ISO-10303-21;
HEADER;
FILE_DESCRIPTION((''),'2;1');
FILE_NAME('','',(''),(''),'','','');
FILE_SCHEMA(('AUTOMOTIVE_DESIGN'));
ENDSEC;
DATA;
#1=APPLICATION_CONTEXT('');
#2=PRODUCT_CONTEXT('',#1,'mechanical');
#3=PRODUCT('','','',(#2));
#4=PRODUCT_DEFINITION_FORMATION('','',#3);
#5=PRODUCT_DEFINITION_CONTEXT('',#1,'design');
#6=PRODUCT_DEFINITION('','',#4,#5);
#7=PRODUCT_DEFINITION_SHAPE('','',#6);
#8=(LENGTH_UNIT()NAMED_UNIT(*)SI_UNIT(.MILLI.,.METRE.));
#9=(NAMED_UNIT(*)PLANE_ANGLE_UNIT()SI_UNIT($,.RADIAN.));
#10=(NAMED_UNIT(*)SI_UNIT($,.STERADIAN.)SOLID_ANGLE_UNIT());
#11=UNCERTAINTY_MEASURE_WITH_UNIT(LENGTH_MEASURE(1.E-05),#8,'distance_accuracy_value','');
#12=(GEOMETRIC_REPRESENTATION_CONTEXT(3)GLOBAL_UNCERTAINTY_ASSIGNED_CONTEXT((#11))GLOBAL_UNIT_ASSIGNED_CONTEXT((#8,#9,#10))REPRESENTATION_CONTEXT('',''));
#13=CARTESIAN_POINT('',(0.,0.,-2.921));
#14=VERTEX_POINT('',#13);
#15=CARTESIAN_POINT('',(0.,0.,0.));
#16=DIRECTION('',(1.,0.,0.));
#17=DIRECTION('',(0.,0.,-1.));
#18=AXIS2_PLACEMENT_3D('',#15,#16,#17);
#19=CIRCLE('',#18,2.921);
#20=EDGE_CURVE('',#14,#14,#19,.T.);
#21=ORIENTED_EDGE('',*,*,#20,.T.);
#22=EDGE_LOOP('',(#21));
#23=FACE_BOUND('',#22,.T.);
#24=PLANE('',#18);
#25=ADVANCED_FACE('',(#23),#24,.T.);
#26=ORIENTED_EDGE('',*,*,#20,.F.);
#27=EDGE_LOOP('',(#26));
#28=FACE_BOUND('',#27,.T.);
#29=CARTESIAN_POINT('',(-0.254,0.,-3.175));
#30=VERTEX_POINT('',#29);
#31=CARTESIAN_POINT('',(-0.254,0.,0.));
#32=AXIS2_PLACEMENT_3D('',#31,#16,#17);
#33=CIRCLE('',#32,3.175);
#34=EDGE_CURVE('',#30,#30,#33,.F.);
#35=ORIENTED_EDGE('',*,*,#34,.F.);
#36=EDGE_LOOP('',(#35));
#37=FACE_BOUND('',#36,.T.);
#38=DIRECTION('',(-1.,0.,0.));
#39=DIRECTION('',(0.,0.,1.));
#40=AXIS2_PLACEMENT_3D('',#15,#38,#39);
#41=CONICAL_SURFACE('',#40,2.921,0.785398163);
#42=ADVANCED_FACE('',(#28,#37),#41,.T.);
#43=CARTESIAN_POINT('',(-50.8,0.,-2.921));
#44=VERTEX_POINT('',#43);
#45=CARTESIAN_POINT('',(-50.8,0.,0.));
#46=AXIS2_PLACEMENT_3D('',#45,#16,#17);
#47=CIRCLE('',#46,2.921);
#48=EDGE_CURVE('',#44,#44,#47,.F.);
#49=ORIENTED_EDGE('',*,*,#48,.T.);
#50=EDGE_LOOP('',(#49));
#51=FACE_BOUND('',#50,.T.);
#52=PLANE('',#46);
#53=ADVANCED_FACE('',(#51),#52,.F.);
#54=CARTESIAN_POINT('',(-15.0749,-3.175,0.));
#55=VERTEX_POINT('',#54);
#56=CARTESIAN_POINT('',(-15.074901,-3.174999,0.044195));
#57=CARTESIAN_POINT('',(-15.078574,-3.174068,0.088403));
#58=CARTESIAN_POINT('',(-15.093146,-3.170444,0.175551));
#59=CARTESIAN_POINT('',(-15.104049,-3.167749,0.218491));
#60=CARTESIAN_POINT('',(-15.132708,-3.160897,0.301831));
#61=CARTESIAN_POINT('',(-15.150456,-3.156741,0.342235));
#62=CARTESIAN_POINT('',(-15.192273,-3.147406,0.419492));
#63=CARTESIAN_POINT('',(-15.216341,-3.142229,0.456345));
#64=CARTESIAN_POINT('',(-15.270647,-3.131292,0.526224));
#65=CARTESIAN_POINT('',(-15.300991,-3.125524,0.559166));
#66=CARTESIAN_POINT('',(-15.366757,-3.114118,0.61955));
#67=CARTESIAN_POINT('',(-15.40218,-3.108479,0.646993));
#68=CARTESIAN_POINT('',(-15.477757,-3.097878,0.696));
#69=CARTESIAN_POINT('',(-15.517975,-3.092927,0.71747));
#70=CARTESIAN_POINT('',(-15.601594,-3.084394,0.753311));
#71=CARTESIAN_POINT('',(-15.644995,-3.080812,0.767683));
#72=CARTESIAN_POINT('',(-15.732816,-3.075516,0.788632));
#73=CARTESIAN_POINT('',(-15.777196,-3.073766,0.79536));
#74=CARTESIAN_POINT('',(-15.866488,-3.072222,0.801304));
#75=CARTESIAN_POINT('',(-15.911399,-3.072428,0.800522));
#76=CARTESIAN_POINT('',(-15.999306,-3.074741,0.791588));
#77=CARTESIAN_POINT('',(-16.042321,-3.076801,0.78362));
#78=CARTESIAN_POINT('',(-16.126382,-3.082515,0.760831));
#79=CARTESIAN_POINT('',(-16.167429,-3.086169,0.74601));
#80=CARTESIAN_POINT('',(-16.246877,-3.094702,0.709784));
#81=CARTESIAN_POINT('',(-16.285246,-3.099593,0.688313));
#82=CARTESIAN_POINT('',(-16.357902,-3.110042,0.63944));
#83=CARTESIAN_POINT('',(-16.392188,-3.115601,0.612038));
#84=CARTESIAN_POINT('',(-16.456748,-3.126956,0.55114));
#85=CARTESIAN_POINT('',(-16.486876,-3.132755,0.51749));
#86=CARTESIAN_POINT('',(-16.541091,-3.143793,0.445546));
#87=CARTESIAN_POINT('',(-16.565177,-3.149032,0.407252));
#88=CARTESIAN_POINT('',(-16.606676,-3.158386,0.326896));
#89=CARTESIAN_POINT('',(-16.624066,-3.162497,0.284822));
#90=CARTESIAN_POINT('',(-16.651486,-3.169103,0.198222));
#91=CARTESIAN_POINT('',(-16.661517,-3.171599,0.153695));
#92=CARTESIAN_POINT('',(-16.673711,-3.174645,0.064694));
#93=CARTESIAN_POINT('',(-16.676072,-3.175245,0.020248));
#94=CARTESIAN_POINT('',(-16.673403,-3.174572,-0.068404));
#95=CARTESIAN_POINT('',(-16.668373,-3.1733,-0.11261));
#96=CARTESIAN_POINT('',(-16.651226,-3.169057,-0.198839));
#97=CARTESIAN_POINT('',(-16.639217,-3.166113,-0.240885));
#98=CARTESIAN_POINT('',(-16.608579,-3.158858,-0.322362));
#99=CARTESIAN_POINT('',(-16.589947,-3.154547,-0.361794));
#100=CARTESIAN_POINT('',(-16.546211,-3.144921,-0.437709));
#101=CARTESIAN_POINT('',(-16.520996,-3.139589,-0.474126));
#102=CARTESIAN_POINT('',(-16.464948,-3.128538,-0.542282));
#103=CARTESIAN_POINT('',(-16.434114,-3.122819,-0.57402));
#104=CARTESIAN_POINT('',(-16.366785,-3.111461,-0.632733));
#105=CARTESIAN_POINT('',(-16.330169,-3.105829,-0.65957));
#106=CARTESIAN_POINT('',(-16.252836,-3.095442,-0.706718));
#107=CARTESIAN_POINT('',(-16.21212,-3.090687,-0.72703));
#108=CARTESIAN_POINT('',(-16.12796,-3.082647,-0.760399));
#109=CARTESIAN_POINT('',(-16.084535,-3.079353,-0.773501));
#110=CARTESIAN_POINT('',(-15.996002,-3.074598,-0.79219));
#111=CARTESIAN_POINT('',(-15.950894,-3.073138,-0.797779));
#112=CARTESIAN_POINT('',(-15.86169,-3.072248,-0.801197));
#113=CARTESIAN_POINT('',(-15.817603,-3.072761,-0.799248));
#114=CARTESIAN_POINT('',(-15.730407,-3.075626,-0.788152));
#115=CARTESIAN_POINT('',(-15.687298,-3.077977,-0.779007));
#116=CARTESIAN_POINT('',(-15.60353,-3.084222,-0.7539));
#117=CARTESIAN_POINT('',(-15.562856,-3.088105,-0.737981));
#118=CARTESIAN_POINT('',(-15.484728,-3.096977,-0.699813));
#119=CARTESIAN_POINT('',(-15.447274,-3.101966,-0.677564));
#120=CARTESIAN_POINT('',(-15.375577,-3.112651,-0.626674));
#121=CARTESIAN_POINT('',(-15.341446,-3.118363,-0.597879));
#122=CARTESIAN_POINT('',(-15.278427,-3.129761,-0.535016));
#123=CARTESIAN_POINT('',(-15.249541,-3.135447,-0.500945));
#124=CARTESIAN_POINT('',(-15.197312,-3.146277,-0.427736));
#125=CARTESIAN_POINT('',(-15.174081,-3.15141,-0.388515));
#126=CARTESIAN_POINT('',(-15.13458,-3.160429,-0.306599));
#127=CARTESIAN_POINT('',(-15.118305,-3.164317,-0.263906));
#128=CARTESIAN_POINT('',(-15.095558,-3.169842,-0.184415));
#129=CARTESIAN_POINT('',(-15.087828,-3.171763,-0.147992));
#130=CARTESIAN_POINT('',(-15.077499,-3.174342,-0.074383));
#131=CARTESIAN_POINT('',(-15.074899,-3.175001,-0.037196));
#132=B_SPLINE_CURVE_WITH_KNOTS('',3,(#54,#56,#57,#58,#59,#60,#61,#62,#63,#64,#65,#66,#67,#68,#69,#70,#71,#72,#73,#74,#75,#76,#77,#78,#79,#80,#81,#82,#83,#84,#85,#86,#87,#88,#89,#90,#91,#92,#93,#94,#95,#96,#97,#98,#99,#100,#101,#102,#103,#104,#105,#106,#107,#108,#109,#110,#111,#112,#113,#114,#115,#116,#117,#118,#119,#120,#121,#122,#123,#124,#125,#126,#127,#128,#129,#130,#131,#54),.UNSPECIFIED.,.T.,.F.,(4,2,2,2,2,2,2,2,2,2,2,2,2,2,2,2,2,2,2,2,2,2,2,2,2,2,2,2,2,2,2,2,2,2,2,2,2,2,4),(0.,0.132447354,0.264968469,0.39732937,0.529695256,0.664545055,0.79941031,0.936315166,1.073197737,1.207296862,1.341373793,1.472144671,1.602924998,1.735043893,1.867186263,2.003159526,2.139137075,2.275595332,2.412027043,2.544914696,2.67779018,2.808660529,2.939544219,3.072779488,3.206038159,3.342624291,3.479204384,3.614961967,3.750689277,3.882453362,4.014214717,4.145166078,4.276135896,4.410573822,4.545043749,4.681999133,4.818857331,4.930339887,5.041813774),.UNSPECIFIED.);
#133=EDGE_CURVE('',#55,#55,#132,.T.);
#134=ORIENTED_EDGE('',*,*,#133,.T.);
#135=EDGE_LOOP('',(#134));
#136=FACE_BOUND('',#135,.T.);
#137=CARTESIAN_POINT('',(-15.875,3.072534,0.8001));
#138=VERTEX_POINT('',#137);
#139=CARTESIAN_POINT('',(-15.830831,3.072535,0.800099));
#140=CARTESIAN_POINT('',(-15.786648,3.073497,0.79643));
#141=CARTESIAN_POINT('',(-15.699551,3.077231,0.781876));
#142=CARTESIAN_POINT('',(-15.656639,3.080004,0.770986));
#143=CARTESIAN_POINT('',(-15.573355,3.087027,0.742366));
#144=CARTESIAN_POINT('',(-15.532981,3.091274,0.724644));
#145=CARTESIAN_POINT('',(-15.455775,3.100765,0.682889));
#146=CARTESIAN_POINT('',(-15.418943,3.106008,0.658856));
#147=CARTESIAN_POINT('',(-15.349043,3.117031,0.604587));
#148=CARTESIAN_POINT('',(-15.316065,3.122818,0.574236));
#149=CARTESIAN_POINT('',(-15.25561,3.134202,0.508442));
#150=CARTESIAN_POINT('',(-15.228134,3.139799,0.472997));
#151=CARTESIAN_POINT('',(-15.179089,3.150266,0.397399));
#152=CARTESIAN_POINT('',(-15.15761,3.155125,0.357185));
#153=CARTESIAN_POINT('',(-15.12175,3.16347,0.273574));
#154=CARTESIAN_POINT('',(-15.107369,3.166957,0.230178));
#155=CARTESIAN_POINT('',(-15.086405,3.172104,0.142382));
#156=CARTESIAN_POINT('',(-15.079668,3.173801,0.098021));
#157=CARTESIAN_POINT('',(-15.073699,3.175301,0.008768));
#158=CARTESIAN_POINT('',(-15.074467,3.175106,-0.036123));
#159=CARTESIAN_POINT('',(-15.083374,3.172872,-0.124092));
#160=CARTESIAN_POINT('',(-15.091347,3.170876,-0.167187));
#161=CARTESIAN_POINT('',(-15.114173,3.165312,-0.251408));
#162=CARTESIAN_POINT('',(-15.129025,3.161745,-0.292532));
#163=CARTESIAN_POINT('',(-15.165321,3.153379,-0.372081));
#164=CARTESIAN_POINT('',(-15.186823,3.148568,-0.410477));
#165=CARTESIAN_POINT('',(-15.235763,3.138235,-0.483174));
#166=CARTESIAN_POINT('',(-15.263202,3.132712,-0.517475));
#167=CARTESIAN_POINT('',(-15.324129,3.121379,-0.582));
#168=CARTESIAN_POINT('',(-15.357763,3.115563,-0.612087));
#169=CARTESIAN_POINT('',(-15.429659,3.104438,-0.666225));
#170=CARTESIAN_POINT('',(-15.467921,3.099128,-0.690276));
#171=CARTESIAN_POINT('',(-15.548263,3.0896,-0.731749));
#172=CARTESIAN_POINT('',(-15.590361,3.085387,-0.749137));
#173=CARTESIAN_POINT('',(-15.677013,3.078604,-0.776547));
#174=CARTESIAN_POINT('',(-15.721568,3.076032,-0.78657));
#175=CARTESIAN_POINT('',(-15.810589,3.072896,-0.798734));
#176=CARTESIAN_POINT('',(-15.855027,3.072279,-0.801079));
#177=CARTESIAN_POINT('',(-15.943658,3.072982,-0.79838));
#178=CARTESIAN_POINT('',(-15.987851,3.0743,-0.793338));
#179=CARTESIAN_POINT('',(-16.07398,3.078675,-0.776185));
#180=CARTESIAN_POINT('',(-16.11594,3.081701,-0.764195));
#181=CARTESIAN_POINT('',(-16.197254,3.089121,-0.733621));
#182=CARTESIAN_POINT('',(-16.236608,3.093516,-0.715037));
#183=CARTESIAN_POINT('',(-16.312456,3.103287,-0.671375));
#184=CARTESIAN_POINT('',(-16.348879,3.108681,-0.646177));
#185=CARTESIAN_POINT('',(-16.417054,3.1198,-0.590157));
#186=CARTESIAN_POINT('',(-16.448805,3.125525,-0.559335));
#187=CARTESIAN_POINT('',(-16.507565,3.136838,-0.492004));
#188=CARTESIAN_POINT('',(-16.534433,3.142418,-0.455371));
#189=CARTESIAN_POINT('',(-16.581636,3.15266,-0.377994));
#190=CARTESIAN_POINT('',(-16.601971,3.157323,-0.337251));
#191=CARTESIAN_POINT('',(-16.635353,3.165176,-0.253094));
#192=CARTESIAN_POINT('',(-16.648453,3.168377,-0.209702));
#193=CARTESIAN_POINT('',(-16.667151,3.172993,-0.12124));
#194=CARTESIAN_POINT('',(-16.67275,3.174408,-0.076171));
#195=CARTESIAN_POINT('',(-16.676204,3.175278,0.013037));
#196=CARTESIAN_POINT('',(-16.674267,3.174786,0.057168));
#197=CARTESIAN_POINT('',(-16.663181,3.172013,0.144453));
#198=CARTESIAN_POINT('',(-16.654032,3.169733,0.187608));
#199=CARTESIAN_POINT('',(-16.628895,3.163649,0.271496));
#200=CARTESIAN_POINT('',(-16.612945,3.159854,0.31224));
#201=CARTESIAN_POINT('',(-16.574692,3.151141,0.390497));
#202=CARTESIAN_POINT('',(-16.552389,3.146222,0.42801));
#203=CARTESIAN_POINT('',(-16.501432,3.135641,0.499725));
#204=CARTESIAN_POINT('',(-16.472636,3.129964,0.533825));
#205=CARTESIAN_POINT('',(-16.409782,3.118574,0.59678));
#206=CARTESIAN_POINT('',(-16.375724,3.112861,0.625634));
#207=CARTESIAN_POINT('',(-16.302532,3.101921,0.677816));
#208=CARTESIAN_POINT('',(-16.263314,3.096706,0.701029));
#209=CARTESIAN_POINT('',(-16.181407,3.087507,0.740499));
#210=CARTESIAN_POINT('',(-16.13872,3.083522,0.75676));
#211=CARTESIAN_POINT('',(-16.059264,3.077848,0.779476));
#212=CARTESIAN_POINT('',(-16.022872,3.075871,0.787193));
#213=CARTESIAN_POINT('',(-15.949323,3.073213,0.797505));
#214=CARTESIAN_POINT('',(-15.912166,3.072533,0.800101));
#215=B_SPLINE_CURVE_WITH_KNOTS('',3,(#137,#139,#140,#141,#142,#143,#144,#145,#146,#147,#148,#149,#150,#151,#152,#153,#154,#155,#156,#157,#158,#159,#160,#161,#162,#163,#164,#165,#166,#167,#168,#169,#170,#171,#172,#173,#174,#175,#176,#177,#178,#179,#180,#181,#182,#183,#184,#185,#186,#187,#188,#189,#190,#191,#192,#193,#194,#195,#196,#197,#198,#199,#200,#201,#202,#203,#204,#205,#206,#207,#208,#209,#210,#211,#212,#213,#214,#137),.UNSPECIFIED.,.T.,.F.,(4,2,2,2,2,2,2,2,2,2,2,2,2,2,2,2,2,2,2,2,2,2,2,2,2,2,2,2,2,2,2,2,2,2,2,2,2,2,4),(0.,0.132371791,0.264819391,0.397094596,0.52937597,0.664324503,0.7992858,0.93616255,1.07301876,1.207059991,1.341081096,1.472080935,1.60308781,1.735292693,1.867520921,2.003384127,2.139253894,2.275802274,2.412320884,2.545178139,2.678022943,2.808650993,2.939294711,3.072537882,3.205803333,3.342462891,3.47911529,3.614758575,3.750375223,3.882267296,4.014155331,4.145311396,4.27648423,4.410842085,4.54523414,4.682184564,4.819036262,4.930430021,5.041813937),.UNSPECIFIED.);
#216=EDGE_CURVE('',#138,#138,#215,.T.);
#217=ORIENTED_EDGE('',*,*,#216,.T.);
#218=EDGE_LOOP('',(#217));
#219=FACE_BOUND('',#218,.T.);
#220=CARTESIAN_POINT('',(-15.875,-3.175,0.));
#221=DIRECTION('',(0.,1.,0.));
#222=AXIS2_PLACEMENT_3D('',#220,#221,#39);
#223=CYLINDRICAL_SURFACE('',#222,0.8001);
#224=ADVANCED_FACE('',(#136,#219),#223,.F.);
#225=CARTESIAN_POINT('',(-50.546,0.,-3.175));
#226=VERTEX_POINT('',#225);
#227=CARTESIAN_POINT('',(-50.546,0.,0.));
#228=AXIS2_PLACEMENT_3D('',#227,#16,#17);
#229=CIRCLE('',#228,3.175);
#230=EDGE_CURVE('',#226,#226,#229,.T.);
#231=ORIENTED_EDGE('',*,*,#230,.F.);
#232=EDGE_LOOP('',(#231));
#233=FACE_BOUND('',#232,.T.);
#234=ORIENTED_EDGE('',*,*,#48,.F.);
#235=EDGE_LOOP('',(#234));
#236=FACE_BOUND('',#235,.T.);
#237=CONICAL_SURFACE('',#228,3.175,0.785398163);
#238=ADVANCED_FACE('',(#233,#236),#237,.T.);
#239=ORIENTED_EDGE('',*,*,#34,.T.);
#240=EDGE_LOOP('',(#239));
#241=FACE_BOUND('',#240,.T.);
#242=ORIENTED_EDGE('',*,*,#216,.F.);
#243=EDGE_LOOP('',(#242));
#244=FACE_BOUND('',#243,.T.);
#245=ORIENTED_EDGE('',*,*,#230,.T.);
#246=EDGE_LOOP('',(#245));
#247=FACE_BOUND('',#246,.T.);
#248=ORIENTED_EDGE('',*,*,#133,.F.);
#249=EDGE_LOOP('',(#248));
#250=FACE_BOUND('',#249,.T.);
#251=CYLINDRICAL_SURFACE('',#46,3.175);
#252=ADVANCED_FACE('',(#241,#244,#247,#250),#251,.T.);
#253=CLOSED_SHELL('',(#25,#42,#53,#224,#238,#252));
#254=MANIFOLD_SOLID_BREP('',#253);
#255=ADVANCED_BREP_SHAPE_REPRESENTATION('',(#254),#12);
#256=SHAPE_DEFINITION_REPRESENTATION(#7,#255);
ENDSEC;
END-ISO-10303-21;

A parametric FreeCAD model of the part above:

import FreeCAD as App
import Part
import Sketcher
Q = App.Units.Quantity


def edges_at(feature, points):
    """Names of the edges that pass closest to the given points."""
    edges = feature.Shape.Edges
    near = lambda p: min(range(len(edges)), key=lambda i: edges[i].distToShape(Part.Vertex(*p))[0])
    return sorted({f"Edge{near(p) + 1}" for p in points})

doc = App.newDocument("Part")
body = doc.addObject("PartDesign::Body", "Body")

# Sketch on YZ plane
sketch1 = body.newObject("Sketcher::SketchObject", "Sketch")
sketch1.AttachmentSupport = (doc.getObject("YZ_Plane"), [""])
sketch1.MapMode = "FlatFace"
sketch1.addGeometry(Part.Circle(App.Vector(0, 0, 0), App.Vector(0, 0, 1), 3.2), False)
sketch1.addConstraint([
    Sketcher.Constraint("Coincident", 0, 3, -1, 1),
    Sketcher.Constraint("Diameter", 0, Q("0.25 in")),
])
pad1 = body.newObject("PartDesign::Pad", "Pad")
pad1.Profile = sketch1
pad1.Length = Q("2 in")
pad1.Reversed = True
doc.recompute()

chamfer = body.newObject("PartDesign::Chamfer", "Chamfer")
chamfer.Base = (pad1, edges_at(pad1, [(0, 0, 3.175), (-50.8, 0, 3.175)]))
chamfer.Size = Q("0.01 in")

# Sketch on XZ plane
sketch2 = body.newObject("Sketcher::SketchObject", "Sketch001")
sketch2.AttachmentSupport = (doc.getObject("XZ_Plane"), [""])
sketch2.MapMode = "FlatFace"
sketch2.addGeometry(Part.Circle(App.Vector(-15.9, 0, 0), App.Vector(0, 0, 1), 0.8), False)
sketch2.addConstraint([
    Sketcher.Constraint("PointOnObject", 0, 3, -1),
    Sketcher.Constraint("Diameter", 0, Q("0.063 in")),
    Sketcher.Constraint("DistanceX", 0, 3, -1, 1, Q("0.625 in")),
])
pocket1 = body.newObject("PartDesign::Pocket", "Pocket")
pocket1.Profile = sketch2
pocket1.Type = "ThroughAll"
pocket1.Midplane = True

doc.recompute()
